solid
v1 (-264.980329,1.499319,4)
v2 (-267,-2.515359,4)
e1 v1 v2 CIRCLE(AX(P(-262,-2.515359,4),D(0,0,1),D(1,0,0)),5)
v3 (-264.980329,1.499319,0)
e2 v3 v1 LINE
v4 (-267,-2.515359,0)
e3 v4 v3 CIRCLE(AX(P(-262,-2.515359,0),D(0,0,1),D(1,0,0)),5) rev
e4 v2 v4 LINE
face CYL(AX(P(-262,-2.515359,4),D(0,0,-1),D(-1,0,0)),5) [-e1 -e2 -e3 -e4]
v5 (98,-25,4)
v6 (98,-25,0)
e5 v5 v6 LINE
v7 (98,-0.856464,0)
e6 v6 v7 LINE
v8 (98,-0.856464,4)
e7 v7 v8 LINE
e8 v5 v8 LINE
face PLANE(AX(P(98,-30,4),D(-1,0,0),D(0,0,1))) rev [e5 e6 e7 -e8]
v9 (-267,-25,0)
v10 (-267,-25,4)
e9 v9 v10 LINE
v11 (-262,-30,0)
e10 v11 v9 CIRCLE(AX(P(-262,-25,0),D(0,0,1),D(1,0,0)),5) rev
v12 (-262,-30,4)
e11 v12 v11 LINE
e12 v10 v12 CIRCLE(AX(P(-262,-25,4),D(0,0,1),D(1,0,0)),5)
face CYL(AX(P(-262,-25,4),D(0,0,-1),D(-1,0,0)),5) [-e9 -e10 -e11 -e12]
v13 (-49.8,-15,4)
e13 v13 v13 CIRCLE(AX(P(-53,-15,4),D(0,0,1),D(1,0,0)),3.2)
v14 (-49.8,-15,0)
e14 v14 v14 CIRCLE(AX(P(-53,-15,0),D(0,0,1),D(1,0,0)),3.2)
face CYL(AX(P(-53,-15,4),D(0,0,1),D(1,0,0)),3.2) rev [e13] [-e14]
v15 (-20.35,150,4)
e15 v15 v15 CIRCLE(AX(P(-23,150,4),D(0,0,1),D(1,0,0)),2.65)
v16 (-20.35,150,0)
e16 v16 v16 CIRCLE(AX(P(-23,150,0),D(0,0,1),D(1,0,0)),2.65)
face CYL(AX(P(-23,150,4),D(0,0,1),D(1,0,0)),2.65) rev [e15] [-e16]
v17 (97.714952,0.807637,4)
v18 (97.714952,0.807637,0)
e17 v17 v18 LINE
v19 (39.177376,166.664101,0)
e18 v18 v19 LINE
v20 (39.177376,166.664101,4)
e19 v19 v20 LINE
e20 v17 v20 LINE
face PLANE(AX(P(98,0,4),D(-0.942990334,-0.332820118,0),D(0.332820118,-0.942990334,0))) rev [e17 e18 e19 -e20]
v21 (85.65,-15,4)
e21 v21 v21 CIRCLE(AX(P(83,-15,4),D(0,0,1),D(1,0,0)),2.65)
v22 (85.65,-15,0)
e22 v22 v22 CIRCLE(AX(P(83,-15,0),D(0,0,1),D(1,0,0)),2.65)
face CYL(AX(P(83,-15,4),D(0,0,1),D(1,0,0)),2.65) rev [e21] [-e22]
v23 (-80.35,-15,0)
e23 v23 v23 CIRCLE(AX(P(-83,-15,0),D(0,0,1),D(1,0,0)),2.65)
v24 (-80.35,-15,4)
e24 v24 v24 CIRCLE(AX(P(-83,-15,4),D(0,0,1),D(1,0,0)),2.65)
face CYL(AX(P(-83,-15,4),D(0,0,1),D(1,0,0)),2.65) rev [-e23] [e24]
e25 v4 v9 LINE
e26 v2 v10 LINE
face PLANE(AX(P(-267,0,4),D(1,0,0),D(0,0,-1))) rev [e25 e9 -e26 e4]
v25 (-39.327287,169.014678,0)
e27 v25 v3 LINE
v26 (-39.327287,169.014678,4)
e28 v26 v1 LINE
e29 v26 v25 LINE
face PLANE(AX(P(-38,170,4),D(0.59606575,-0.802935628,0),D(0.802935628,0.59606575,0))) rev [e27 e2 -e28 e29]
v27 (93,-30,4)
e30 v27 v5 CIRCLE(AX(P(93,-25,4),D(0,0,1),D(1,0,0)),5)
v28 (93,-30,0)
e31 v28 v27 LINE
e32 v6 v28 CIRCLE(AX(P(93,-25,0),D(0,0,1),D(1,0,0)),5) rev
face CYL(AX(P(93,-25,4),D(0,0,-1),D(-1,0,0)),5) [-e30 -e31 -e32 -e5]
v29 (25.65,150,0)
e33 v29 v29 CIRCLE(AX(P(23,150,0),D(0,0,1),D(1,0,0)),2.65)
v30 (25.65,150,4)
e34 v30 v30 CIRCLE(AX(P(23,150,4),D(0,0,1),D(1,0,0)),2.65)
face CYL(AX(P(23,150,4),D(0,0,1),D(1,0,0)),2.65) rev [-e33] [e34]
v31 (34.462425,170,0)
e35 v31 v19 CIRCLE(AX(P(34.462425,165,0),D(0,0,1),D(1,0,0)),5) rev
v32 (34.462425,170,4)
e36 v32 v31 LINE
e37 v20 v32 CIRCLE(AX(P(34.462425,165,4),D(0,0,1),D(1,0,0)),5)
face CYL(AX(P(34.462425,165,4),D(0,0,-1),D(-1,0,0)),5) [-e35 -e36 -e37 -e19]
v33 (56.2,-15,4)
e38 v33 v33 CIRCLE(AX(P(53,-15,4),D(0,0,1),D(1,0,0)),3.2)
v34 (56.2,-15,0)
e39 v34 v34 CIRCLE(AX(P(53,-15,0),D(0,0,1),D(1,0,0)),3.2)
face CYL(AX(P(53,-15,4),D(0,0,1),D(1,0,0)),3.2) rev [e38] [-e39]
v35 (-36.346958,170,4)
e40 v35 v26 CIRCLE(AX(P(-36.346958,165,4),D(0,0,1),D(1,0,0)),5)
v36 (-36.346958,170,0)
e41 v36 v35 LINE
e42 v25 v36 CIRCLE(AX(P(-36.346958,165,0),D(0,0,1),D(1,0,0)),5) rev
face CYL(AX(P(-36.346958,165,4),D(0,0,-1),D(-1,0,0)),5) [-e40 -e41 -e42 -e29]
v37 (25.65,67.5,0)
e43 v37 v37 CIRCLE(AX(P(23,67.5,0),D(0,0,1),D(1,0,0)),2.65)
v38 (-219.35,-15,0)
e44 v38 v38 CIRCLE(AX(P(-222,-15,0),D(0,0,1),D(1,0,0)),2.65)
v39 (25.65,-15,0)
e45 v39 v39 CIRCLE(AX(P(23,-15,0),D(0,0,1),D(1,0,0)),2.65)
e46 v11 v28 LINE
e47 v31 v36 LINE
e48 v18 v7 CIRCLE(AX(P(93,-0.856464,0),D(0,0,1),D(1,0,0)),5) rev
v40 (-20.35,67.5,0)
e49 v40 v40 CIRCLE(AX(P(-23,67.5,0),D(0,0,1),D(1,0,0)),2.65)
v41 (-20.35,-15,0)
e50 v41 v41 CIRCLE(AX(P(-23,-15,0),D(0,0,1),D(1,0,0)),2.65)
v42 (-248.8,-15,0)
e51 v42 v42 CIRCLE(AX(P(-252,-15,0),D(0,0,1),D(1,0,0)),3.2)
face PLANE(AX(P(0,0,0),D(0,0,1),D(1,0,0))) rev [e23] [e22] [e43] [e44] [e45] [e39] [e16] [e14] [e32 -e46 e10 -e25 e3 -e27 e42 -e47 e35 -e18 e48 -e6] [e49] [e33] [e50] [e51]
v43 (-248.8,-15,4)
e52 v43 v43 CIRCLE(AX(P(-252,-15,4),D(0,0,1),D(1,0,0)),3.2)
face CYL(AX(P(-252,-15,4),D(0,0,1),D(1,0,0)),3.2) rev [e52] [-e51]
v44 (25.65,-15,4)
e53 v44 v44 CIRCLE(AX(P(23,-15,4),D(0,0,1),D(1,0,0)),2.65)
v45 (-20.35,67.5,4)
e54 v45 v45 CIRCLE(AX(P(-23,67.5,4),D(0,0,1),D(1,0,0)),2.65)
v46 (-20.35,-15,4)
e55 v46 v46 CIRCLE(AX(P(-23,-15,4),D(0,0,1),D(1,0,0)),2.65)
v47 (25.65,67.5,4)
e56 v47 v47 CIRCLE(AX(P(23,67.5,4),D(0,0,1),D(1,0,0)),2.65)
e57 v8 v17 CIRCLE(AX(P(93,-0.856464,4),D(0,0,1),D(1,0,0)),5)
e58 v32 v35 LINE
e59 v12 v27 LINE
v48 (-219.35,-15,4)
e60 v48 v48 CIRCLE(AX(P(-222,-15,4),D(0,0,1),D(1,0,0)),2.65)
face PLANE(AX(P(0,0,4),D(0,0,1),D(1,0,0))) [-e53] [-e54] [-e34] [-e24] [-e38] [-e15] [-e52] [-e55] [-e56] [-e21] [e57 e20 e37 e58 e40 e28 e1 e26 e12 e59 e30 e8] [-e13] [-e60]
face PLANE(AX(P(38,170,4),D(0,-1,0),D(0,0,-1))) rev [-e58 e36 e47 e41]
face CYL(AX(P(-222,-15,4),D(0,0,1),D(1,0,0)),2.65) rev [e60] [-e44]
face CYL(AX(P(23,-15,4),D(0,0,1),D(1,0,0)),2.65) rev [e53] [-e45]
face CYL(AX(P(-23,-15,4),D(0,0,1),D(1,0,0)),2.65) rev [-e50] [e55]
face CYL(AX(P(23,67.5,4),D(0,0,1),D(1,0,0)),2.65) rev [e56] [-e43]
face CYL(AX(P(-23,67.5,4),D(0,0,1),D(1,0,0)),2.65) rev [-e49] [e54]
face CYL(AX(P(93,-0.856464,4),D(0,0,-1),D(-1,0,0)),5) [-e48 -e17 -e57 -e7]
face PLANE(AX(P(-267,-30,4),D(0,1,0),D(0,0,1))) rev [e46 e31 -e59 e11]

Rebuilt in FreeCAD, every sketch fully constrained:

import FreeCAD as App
import Part
import Sketcher

V = App.Vector
Q = App.Units.Quantity


def edges_at(feature, points):
    """Names of the edges that pass closest to the given points."""
    edges = feature.Shape.Edges
    near = lambda p: min(range(len(edges)), key=lambda i: edges[i].distToShape(Part.Vertex(*p))[0])
    return sorted({f"Edge{near(p) + 1}" for p in points})

doc = App.newDocument("Part")
body = doc.addObject("PartDesign::Body", "Body")

sketch1 = body.newObject("Sketcher::SketchObject", "Sketch")
sketch1.AttachmentSupport = (doc.getObject("XY_Plane"), [""])
sketch1.MapMode = "FlatFace"
sketch1.addGeometry([
    Part.LineSegment(V(-267, -30, 0), V(98, -30, 0)),
    Part.LineSegment(V(98, -30, 0), V(98, 0, 0)),
    Part.LineSegment(V(98, 0, 0), V(38, 170, 0)),
    Part.LineSegment(V(38, 170, 0), V(-38, 170, 0)),
    Part.LineSegment(V(-38, 170, 0), V(-267, 0, 0)),
    Part.LineSegment(V(-267, 0, 0), V(-267, -30, 0)),
], False)
sketch1.addConstraint([
    Sketcher.Constraint("Coincident", 0, 2, 1, 1),
    Sketcher.Constraint("Coincident", 1, 2, 2, 1),
    Sketcher.Constraint("Coincident", 2, 2, 3, 1),
    Sketcher.Constraint("Coincident", 3, 2, 4, 1),
    Sketcher.Constraint("Coincident", 4, 2, 5, 1),
    Sketcher.Constraint("Coincident", 5, 2, 0, 1),
    Sketcher.Constraint("Horizontal", 0),
    Sketcher.Constraint("Vertical", 1),
    Sketcher.Constraint("Horizontal", 3),
    Sketcher.Constraint("Vertical", 5),
    Sketcher.Constraint("PointOnObject", 1, 2, -1),
    Sketcher.Constraint("PointOnObject", 4, 2, -1),
    Sketcher.Constraint("DistanceX", 0, 1, 0, 2, Q("365 mm")),
    Sketcher.Constraint("DistanceX", 3, 2, 3, 1, Q("76 mm")),
    Sketcher.Constraint("DistanceY", 1, 1, 1, 2, Q("30 mm")),
    Sketcher.Constraint("DistanceX", -1, 1, 0, 2, Q("98 mm")),
    Sketcher.Constraint("DistanceX", -1, 1, 2, 2, Q("38 mm")),
    Sketcher.Constraint("DistanceY", -1, 1, 2, 2, Q("170 mm")),
])
pad1 = body.newObject("PartDesign::Pad", "Pad")
pad1.Profile = sketch1
pad1.Length = 4

sketch2 = body.newObject("Sketcher::SketchObject", "Sketch001")
sketch2.AttachmentSupport = (doc.getObject("XY_Plane"), [""])
sketch2.MapMode = "FlatFace"
sketch2.AttachmentOffset = App.Placement(V(0, 0, 4), App.Rotation())
sketch2.addGeometry([
    Part.Circle(V(-23, 150, 0), V(0, 0, 1), 2.6),
    Part.Circle(V(-23, 67.5, 0), V(0, 0, 1), 2.6),
    Part.Circle(V(-23, -15, 0), V(0, 0, 1), 2.6),
    Part.Circle(V(23, -15, 0), V(0, 0, 1), 2.6),
    Part.Circle(V(23, 150, 0), V(0, 0, 1), 2.6),
    Part.Circle(V(23, 67.5, 0), V(0, 0, 1), 2.6),
    Part.Circle(V(-83, -15, 0), V(0, 0, 1), 2.6),
    Part.Circle(V(83, -15, 0), V(0, 0, 1), 2.6),
    Part.Circle(V(-222, -15, 0), V(0, 0, 1), 2.6),
], False)
sketch2.addConstraint([
    Sketcher.Constraint("Equal", 0, 1),
    Sketcher.Constraint("Equal", 1, 2),
    Sketcher.Constraint("Equal", 2, 3),
    Sketcher.Constraint("Equal", 3, 4),
    Sketcher.Constraint("Equal", 4, 5),
    Sketcher.Constraint("Equal", 5, 6),
    Sketcher.Constraint("Equal", 6, 7),
    Sketcher.Constraint("Equal", 7, 8),
    Sketcher.Constraint("Symmetric", 2, 3, 3, 3, -2),
    Sketcher.Constraint("Symmetric", 0, 3, 4, 3, -2),
    Sketcher.Constraint("Symmetric", 1, 3, 5, 3, -2),
    Sketcher.Constraint("Symmetric", 6, 3, 7, 3, -2),
    Sketcher.Constraint("Horizontal", 3, 3, 6, 3),
    Sketcher.Constraint("Horizontal", 7, 3, 8, 3),
    Sketcher.Constraint("Vertical", 0, 3, 1, 3),
    Sketcher.Constraint("Vertical", 1, 3, 2, 3),
    Sketcher.Constraint("Diameter", 0, Q("5.3 mm")),
    Sketcher.Constraint("DistanceX", 0, 3, -1, 1, Q("23 mm")),
    Sketcher.Constraint("DistanceY", -1, 1, 0, 3, Q("150 mm")),
    Sketcher.Constraint("DistanceY", 2, 3, -1, 1, Q("15 mm")),
    Sketcher.Constraint("DistanceX", 6, 3, -1, 1, Q("83 mm")),
    Sketcher.Constraint("DistanceX", 8, 3, -1, 1, Q("222 mm")),
    Sketcher.Constraint("DistanceY", -1, 1, 1, 3, Q("67.5 mm")),
])
doc.recompute()
hole = body.newObject("PartDesign::Hole", "Hole")
hole.Profile = sketch2
hole.ThreadType = "None"
hole.Diameter = 5.3
hole.DepthType = "ThroughAll"
doc.recompute()

fillet = body.newObject("PartDesign::Fillet", "Fillet")
fillet.Base = (hole, edges_at(hole, [
    (-267, 0, 2),
    (-38, 170, 2),
    (38, 170, 2),
    (98, 0, 2),
    (98, -30, 2),
    (-267, -30, 2),
]))
fillet.Radius = 5

sketch3 = body.newObject("Sketcher::SketchObject", "Sketch002")
sketch3.AttachmentSupport = (doc.getObject("XY_Plane"), [""])
sketch3.MapMode = "FlatFace"
sketch3.AttachmentOffset = App.Placement(V(0, 0, 4), App.Rotation())
sketch3.addGeometry([
    Part.Circle(V(-252, -15, 0), V(0, 0, 1), 3.2),
    Part.Circle(V(-53, -15, 0), V(0, 0, 1), 3.2),
    Part.Circle(V(53, -15, 0), V(0, 0, 1), 3.2),
], False)
sketch3.addConstraint([
    Sketcher.Constraint("Equal", 0, 1),
    Sketcher.Constraint("Equal", 1, 2),
    Sketcher.Constraint("Symmetric", 1, 3, 2, 3, -2),
    Sketcher.Constraint("Horizontal", 0, 3, 1, 3),
    Sketcher.Constraint("Diameter", 0, Q("6.4 mm")),
    Sketcher.Constraint("DistanceX", 0, 3, -1, 1, Q("252 mm")),
    Sketcher.Constraint("DistanceY", 0, 3, -1, 1, Q("15 mm")),
    Sketcher.Constraint("DistanceX", 1, 3, -1, 1, Q("53 mm")),
])
doc.recompute()
hole2 = body.newObject("PartDesign::Hole", "Hole001")
hole2.Profile = sketch3
hole2.ThreadType = "None"
hole2.Diameter = 6.4
hole2.DepthType = "Dimension"
hole2.Depth = 8
hole2.DrillPoint = "Angled"
hole2.DrillPointAngle = 118

doc.recompute()
